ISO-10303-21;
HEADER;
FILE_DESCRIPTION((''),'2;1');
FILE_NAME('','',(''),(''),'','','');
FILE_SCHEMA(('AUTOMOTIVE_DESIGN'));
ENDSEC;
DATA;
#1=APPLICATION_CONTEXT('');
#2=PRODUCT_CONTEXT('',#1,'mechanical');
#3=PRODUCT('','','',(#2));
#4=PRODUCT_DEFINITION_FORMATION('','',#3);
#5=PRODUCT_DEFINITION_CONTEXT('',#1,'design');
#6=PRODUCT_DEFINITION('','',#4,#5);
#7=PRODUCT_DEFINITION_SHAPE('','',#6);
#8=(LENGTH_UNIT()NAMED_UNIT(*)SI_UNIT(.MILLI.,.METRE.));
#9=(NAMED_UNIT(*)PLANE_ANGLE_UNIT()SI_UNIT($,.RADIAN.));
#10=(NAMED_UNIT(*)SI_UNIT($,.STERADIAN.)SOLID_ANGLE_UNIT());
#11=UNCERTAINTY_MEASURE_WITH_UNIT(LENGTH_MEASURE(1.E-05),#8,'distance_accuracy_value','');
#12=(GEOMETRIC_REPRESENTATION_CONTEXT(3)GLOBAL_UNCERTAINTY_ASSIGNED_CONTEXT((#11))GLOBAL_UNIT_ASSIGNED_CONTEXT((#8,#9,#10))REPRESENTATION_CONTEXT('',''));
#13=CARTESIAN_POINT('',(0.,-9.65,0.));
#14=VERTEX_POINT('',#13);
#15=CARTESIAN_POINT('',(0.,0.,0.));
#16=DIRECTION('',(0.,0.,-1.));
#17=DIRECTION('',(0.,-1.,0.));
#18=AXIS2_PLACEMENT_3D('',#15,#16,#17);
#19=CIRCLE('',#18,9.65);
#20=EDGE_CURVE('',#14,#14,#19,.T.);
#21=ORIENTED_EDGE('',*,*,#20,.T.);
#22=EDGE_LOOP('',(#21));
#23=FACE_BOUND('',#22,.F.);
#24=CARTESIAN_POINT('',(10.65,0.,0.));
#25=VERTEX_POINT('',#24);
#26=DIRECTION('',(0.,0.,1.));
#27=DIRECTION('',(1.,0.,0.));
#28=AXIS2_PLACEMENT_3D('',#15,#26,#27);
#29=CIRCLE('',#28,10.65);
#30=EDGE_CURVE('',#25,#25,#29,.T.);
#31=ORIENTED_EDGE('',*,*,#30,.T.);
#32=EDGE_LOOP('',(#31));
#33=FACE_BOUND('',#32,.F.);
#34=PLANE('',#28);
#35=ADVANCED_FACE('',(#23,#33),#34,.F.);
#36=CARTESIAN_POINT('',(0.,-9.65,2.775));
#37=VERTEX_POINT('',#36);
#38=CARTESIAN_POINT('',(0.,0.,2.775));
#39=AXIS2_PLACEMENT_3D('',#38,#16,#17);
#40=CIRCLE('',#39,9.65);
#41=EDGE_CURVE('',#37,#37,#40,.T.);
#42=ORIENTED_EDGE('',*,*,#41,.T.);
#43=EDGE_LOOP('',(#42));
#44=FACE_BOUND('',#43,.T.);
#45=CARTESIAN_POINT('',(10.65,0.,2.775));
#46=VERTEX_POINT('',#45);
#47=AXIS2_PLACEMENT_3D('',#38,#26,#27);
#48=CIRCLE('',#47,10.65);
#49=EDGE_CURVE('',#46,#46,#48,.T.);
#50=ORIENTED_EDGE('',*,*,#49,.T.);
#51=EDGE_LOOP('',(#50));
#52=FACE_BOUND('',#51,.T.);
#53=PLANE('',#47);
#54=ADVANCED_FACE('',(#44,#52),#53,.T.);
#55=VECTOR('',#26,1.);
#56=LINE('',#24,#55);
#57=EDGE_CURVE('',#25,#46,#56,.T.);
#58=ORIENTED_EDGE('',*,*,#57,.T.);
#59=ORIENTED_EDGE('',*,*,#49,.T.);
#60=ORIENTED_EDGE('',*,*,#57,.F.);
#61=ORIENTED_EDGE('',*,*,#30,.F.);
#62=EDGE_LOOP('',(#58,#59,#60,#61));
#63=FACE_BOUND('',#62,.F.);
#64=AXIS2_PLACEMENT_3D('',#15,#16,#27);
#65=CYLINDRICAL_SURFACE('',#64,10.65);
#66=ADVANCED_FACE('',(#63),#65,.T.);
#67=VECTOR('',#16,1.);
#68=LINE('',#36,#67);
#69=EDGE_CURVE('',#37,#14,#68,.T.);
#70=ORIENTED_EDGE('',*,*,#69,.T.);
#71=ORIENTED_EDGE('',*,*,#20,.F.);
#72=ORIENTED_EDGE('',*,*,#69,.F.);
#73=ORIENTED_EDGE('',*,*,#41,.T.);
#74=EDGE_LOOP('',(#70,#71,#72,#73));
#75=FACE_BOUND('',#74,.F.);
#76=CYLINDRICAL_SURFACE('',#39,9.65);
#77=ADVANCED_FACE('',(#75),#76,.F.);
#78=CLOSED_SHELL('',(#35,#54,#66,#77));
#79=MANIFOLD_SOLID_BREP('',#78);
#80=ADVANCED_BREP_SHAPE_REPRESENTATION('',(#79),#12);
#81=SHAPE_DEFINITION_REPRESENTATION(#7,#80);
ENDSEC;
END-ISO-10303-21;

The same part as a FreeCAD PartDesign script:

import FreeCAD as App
import Part
import Sketcher
from FreeCAD import Vector
Q = App.Units.Quantity

doc = App.newDocument("Part")
body = doc.addObject("PartDesign::Body", "Body")

# Sketch on XY plane
sketch1 = doc.addObject("Sketcher::SketchObject", "Sketch")
body.addObject(sketch1)
sketch1.AttachmentSupport = (doc.XY_Plane, [""])
sketch1.MapMode = "FlatFace"
sketch1.addGeometry(Part.Circle(Vector(0, 0, 0), Vector(0, 0, 1), 11), False)
sketch1.addConstraint(Sketcher.Constraint("Coincident", 0, 3, -1, 1))
sketch1.addConstraint(Sketcher.Constraint("Diameter", 0, Q("21.3 mm")))
pad1 = doc.addObject("PartDesign::Pad", "Pad")
body.addObject(pad1)
pad1.Profile = sketch1
pad1.Length = 2.775

# Sketch on XY plane
sketch2 = doc.addObject("Sketcher::SketchObject", "Sketch001")
body.addObject(sketch2)
sketch2.AttachmentSupport = (doc.XY_Plane, [""])
sketch2.MapMode = "FlatFace"
sketch2.AttachmentOffset = App.Placement(Vector(0, 0, 2.775), App.Rotation())
sketch2.addGeometry(Part.Circle(Vector(0, 0, 0), Vector(0, 0, 1), 10), False)
sketch2.addConstraint(Sketcher.Constraint("Coincident", 0, 3, -1, 1))
sketch2.addConstraint(Sketcher.Constraint("Diameter", 0, Q("19.3 mm")))
doc.recompute()
hole = doc.addObject("PartDesign::Hole", "Hole")
body.addObject(hole)
hole.Profile = sketch2
hole.ThreadType = "None"
hole.Diameter = 19.3
hole.DepthType = "ThroughAll"

doc.recompute()
